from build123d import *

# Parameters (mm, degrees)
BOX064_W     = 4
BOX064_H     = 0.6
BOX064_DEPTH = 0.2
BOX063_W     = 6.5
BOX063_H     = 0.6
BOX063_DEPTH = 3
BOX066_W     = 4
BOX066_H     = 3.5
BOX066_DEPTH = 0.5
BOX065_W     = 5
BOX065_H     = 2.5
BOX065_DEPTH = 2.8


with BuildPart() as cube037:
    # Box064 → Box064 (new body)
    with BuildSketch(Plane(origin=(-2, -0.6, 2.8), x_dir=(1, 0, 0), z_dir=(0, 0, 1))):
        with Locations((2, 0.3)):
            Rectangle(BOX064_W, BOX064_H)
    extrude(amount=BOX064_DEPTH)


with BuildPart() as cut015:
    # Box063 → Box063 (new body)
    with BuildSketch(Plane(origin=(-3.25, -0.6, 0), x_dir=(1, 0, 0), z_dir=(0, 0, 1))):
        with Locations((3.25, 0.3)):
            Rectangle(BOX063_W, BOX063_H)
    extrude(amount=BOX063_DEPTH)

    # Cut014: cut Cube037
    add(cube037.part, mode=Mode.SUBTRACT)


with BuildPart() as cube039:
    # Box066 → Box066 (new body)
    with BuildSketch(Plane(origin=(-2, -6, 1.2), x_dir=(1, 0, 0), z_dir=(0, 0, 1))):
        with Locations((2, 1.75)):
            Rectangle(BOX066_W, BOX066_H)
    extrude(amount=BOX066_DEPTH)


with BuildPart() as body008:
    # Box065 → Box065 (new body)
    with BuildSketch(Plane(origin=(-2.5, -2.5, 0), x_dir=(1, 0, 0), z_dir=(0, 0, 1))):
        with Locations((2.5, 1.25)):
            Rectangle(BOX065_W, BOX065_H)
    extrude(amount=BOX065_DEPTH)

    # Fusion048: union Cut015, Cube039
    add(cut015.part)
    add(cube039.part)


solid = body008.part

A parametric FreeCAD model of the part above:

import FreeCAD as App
import Part
import Sketcher
Q = App.Units.Quantity

doc = App.newDocument("Part")
body = doc.addObject("PartDesign::Body", "Body")

# Sketch on XY plane
sketch1 = body.newObject("Sketcher::SketchObject", "Sketch")
sketch1.AttachmentSupport = (doc.getObject("XY_Plane"), [""])
sketch1.MapMode = "FlatFace"
sketch1.AttachmentOffset = App.Placement(App.Vector(0, 0, 2.8), App.Rotation())
sketch1.addGeometry([
    Part.LineSegment(App.Vector(-2, 0, 0), App.Vector(-2, -0.6, 0)),
    Part.LineSegment(App.Vector(-2, -0.6, 0), App.Vector(2, -0.6, 0)),
    Part.LineSegment(App.Vector(2, -0.6, 0), App.Vector(2, 0, 0)),
    Part.LineSegment(App.Vector(2, 0, 0), App.Vector(-2, 0, 0)),
], False)
sketch1.addConstraint([
    Sketcher.Constraint("Coincident", 0, 2, 1, 1),
    Sketcher.Constraint("Coincident", 1, 2, 2, 1),
    Sketcher.Constraint("Coincident", 2, 2, 3, 1),
    Sketcher.Constraint("Coincident", 3, 2, 0, 1),
    Sketcher.Constraint("Vertical", 0),
    Sketcher.Constraint("Horizontal", 1),
    Sketcher.Constraint("Vertical", 2),
    Sketcher.Constraint("Horizontal", 3),
    Sketcher.Constraint("Symmetric", 2, 2, 3, 2, -1, 1),
    Sketcher.Constraint("DistanceX", 1, 1, 1, 2, Q("4 mm")),
    Sketcher.Constraint("DistanceY", 0, 2, 0, 1, Q("0.6 mm")),
])
pad1 = body.newObject("PartDesign::Pad", "Pad")
pad1.Profile = sketch1
pad1.Length = 0.2
body2 = doc.addObject("PartDesign::Body", "Body001")

# Sketch on XY plane
sketch2 = body2.newObject("Sketcher::SketchObject", "Sketch001")
sketch2.AttachmentSupport = (doc.getObject("XY_Plane001"), [""])
sketch2.MapMode = "FlatFace"
sketch2.addGeometry([
    Part.LineSegment(App.Vector(-3.25, 0, 0), App.Vector(-3.25, -0.6, 0)),
    Part.LineSegment(App.Vector(-3.25, -0.6, 0), App.Vector(3.25, -0.6, 0)),
    Part.LineSegment(App.Vector(3.25, -0.6, 0), App.Vector(3.25, 0, 0)),
    Part.LineSegment(App.Vector(3.25, 0, 0), App.Vector(-3.25, 0, 0)),
], False)
sketch2.addConstraint([
    Sketcher.Constraint("Coincident", 0, 2, 1, 1),
    Sketcher.Constraint("Coincident", 1, 2, 2, 1),
    Sketcher.Constraint("Coincident", 2, 2, 3, 1),
    Sketcher.Constraint("Coincident", 3, 2, 0, 1),
    Sketcher.Constraint("Vertical", 0),
    Sketcher.Constraint("Horizontal", 1),
    Sketcher.Constraint("Vertical", 2),
    Sketcher.Constraint("Horizontal", 3),
    Sketcher.Constraint("Symmetric", 2, 2, 3, 2, -1, 1),
    Sketcher.Constraint("DistanceX", 1, 1, 1, 2, Q("6.5 mm")),
    Sketcher.Constraint("DistanceY", 0, 2, 0, 1, Q("0.6 mm")),
])
pad2 = body2.newObject("PartDesign::Pad", "Pad001")
pad2.Profile = sketch2
pad2.Length = 3
doc.recompute()

boolean = body2.newObject("PartDesign::Boolean", "Boolean")
boolean.Type = "Cut"
boolean.addObjects([body])
body3 = doc.addObject("PartDesign::Body", "Body002")

# Sketch on XY plane
sketch3 = body3.newObject("Sketcher::SketchObject", "Sketch002")
sketch3.AttachmentSupport = (doc.getObject("XY_Plane002"), [""])
sketch3.MapMode = "FlatFace"
sketch3.AttachmentOffset = App.Placement(App.Vector(0, 0, 1.2), App.Rotation())
sketch3.addGeometry([
    Part.LineSegment(App.Vector(-2, -2.5, 0), App.Vector(-2, -6, 0)),
    Part.LineSegment(App.Vector(-2, -6, 0), App.Vector(2, -6, 0)),
    Part.LineSegment(App.Vector(2, -6, 0), App.Vector(2, -2.5, 0)),
    Part.LineSegment(App.Vector(2, -2.5, 0), App.Vector(-2, -2.5, 0)),
], False)
sketch3.addConstraint([
    Sketcher.Constraint("Coincident", 0, 2, 1, 1),
    Sketcher.Constraint("Coincident", 1, 2, 2, 1),
    Sketcher.Constraint("Coincident", 2, 2, 3, 1),
    Sketcher.Constraint("Coincident", 3, 2, 0, 1),
    Sketcher.Constraint("Vertical", 0),
    Sketcher.Constraint("Horizontal", 1),
    Sketcher.Constraint("Vertical", 2),
    Sketcher.Constraint("Horizontal", 3),
    Sketcher.Constraint("DistanceX", 1, 1, 1, 2, Q("4 mm")),
    Sketcher.Constraint("DistanceY", 0, 2, 0, 1, Q("3.5 mm")),
    Sketcher.Constraint("DistanceX", 0, 2, -1, 1, Q("2 mm")),
    Sketcher.Constraint("DistanceY", 0, 2, -1, 1, Q("6 mm")),
])
pad3 = body3.newObject("PartDesign::Pad", "Pad002")
pad3.Profile = sketch3
pad3.Length = 0.5
body4 = doc.addObject("PartDesign::Body", "Body003")

# Sketch on XY plane
sketch4 = body4.newObject("Sketcher::SketchObject", "Sketch003")
sketch4.AttachmentSupport = (doc.getObject("XY_Plane003"), [""])
sketch4.MapMode = "FlatFace"
sketch4.addGeometry([
    Part.LineSegment(App.Vector(-2.5, 0, 0), App.Vector(-2.5, -2.5, 0)),
    Part.LineSegment(App.Vector(-2.5, -2.5, 0), App.Vector(2.5, -2.5, 0)),
    Part.LineSegment(App.Vector(2.5, -2.5, 0), App.Vector(2.5, 0, 0)),
    Part.LineSegment(App.Vector(2.5, 0, 0), App.Vector(-2.5, 0, 0)),
], False)
sketch4.addConstraint([
    Sketcher.Constraint("Coincident", 0, 2, 1, 1),
    Sketcher.Constraint("Coincident", 1, 2, 2, 1),
    Sketcher.Constraint("Coincident", 2, 2, 3, 1),
    Sketcher.Constraint("Coincident", 3, 2, 0, 1),
    Sketcher.Constraint("Vertical", 0),
    Sketcher.Constraint("Horizontal", 1),
    Sketcher.Constraint("Vertical", 2),
    Sketcher.Constraint("Horizontal", 3),
    Sketcher.Constraint("Symmetric", 2, 2, 3, 2, -1, 1),
    Sketcher.Constraint("DistanceX", 1, 1, 1, 2, Q("5 mm")),
    Sketcher.Constraint("DistanceY", 0, 2, 0, 1, Q("2.5 mm")),
])
pad4 = body4.newObject("PartDesign::Pad", "Pad003")
pad4.Profile = sketch4
pad4.Length = 2.8
doc.recompute()

boolean2 = body4.newObject("PartDesign::Boolean", "Boolean001")
boolean2.Type = "Fuse"
boolean2.addObjects([body2])
doc.recompute()

boolean3 = body4.newObject("PartDesign::Boolean", "Boolean002")
boolean3.Type = "Fuse"
boolean3.addObjects([body3])

doc.recompute()
